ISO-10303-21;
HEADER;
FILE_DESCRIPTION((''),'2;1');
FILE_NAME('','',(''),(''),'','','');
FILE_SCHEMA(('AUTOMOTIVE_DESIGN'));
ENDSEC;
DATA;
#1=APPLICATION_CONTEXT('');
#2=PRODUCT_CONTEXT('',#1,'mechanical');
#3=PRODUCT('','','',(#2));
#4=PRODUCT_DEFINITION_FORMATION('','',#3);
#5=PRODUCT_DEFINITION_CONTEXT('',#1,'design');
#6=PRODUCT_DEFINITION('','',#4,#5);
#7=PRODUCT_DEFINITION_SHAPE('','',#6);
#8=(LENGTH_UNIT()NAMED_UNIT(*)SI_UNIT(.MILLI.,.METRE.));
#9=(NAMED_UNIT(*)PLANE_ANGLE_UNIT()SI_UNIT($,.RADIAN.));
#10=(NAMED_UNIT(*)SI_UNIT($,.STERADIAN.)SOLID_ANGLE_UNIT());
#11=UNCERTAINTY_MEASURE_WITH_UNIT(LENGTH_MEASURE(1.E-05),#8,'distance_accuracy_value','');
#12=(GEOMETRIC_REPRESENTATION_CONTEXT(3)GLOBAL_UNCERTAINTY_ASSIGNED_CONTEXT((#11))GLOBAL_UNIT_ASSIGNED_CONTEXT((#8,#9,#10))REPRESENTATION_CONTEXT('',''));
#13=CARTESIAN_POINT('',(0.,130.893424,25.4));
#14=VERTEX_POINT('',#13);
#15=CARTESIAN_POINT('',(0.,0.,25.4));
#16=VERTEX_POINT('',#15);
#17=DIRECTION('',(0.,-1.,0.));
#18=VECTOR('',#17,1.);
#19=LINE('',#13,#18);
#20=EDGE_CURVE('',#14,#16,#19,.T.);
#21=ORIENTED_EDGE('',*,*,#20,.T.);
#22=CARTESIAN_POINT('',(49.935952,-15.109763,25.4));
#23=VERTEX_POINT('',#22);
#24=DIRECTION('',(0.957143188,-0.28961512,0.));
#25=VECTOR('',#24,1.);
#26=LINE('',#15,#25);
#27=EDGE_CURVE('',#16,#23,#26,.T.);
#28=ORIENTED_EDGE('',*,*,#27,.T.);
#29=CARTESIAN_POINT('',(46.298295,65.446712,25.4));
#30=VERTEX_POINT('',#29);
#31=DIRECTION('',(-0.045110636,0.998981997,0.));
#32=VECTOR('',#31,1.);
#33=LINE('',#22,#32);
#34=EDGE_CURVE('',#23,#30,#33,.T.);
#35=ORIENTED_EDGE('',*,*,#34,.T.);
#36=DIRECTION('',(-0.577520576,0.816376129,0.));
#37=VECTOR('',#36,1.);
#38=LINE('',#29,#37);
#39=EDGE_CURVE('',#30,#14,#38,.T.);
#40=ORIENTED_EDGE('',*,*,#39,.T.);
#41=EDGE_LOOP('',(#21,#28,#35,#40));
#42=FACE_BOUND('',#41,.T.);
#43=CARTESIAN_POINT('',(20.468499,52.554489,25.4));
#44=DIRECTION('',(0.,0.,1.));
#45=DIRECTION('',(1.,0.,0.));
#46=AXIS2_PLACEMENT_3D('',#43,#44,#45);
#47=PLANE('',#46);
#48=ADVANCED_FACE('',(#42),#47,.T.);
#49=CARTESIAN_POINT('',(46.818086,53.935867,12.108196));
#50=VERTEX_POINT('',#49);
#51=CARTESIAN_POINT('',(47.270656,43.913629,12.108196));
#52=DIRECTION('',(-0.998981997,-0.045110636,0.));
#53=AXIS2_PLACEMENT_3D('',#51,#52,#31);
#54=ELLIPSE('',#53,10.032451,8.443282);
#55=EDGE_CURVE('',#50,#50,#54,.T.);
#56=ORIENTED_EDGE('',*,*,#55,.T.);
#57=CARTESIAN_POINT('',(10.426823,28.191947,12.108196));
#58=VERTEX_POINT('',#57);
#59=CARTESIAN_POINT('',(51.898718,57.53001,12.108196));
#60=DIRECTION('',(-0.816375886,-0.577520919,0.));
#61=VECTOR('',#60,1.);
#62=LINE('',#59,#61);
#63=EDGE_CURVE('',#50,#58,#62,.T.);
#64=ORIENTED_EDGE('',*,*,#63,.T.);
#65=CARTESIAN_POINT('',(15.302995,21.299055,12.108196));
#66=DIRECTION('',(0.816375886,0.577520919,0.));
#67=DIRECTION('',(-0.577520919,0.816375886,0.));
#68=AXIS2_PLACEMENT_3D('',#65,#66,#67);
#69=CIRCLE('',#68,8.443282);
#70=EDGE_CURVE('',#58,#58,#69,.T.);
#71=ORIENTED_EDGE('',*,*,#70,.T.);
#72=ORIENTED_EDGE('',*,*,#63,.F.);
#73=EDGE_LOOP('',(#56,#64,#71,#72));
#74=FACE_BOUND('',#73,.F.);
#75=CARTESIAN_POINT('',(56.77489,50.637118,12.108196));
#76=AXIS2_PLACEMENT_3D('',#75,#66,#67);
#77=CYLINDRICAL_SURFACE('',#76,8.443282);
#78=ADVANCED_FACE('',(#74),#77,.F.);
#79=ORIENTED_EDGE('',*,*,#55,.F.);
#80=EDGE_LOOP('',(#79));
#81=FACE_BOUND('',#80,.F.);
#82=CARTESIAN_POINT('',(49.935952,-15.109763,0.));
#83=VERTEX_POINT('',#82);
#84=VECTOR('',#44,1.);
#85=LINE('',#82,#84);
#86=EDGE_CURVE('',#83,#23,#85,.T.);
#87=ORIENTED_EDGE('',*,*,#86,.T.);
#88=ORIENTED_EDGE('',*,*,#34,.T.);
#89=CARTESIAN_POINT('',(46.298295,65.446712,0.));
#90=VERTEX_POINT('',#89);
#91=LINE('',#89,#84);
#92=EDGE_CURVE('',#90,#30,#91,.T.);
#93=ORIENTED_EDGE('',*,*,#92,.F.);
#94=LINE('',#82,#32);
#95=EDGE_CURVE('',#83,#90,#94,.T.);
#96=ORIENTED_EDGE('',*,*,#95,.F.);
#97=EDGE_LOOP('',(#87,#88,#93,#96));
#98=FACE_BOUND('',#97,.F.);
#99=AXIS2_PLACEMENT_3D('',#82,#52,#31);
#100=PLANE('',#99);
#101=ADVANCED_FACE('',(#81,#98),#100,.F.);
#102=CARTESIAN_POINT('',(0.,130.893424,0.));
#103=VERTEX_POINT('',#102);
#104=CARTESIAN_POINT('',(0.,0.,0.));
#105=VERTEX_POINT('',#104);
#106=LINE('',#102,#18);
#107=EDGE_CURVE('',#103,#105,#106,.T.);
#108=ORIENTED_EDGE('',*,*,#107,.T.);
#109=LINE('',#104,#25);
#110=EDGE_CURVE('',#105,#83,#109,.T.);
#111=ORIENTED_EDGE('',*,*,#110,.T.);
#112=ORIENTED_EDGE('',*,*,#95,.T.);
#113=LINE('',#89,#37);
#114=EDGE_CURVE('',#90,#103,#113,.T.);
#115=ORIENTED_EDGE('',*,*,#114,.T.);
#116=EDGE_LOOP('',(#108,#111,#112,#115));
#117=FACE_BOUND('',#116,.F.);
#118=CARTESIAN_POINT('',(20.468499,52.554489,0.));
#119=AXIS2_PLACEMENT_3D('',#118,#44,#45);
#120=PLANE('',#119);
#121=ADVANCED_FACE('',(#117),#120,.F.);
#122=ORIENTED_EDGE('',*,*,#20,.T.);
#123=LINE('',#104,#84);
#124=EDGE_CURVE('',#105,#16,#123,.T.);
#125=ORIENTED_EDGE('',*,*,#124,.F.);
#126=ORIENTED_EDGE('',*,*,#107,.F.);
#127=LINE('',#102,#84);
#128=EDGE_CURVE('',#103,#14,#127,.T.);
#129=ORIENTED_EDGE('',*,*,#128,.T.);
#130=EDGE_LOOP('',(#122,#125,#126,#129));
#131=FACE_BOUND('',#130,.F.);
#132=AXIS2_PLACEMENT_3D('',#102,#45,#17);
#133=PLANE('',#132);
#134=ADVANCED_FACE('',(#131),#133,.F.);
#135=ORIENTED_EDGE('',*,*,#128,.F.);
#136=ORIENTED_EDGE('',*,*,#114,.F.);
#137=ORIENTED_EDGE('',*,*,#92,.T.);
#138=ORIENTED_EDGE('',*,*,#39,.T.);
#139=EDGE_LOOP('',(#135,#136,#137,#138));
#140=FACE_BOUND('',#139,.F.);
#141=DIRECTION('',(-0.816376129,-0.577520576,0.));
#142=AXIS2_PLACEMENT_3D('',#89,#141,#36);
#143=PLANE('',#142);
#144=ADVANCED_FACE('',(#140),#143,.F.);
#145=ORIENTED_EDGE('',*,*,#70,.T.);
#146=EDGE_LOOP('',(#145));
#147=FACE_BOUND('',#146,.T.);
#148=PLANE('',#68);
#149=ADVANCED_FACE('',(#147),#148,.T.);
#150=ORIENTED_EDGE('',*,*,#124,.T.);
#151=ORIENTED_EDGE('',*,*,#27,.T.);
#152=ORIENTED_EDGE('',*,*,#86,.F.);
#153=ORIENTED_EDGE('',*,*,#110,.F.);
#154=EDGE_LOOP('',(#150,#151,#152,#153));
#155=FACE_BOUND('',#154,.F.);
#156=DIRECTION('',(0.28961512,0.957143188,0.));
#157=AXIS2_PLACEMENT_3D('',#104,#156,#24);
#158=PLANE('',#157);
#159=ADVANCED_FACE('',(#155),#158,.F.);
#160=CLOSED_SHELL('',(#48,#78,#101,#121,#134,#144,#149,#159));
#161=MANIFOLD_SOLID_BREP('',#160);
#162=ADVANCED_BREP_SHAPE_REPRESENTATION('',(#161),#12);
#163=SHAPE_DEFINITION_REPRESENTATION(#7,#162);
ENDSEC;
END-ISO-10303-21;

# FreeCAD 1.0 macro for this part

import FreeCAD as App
import Part
import Sketcher

V = App.Vector
Q = App.Units.Quantity

doc = App.newDocument("Part")
body = doc.addObject("PartDesign::Body", "Body")

# Sketch on XY plane
sketch1 = body.newObject("Sketcher::SketchObject", "Sketch")
sketch1.AttachmentSupport = (doc.getObject("XY_Plane"), [""])
sketch1.MapMode = "FlatFace"
sketch1.addGeometry(Part.LineSegment(V(0, 131, 0), V(0, 0, 0)), False)
sketch1.addGeometry(Part.LineSegment(V(0, 0, 0), V(50, -15, 0)), False)
sketch1.addGeometry(Part.LineSegment(V(50, -15, 0), V(46, 65, 0)), False)
sketch1.addGeometry(Part.LineSegment(V(46, 65, 0), V(0, 131, 0)), False)
sketch1.addConstraint(Sketcher.Constraint("Coincident", 0, 2, 1, 1))
sketch1.addConstraint(Sketcher.Constraint("Coincident", 1, 2, 2, 1))
sketch1.addConstraint(Sketcher.Constraint("Coincident", 2, 2, 3, 1))
sketch1.addConstraint(Sketcher.Constraint("Coincident", 3, 2, 0, 1))
sketch1.addConstraint(Sketcher.Constraint("Vertical", 0))
sketch1.addConstraint(Sketcher.Constraint("Coincident", 0, 2, -1, 1))
sketch1.addConstraint(Sketcher.Constraint("Distance", 3, Q("80.167351 mm")))
sketch1.addConstraint(Sketcher.Constraint("DistanceY", 0, 2, 0, 1, Q("130.893424 mm")))
sketch1.addConstraint(Sketcher.Constraint("Distance", 1, Q("52.171872 mm")))
sketch1.addConstraint(Sketcher.Constraint("Distance", 2, Q("80.638565 mm")))
sketch1.addConstraint(Sketcher.Constraint("DistanceX", -1, 1, 1, 2, Q("49.935952 mm")))
pad1 = body.newObject("PartDesign::Pad", "Pad")
pad1.Profile = sketch1
pad1.Length = Q("1 in")

# Sketch on an angled plane
sketch2 = body.newObject("Sketcher::SketchObject", "Sketch001")
sketch2.Placement = App.Placement(V(61.712848, 43.656886, 0), App.Rotation(V(-0.577520919, 0.816375886, 0), V(0, 0, 0.999999999), V(0.816375886, 0.577520919, 0), "ZXY"))
sketch2.addGeometry(Part.Circle(V(9, 12, 0), V(0, 0, 1), 8), False)
sketch2.addConstraint(Sketcher.Constraint("Diameter", 0, Q("16.886564 mm")))
sketch2.addConstraint(Sketcher.Constraint("DistanceX", -1, 1, 0, 3, Q("8.550267 mm")))
sketch2.addConstraint(Sketcher.Constraint("DistanceY", -1, 1, 0, 3, Q("12.108196 mm")))
pocket1 = body.newObject("PartDesign::Pocket", "Pocket")
pocket1.Profile = sketch2
pocket1.Length = Q("2 in")

doc.recompute()
